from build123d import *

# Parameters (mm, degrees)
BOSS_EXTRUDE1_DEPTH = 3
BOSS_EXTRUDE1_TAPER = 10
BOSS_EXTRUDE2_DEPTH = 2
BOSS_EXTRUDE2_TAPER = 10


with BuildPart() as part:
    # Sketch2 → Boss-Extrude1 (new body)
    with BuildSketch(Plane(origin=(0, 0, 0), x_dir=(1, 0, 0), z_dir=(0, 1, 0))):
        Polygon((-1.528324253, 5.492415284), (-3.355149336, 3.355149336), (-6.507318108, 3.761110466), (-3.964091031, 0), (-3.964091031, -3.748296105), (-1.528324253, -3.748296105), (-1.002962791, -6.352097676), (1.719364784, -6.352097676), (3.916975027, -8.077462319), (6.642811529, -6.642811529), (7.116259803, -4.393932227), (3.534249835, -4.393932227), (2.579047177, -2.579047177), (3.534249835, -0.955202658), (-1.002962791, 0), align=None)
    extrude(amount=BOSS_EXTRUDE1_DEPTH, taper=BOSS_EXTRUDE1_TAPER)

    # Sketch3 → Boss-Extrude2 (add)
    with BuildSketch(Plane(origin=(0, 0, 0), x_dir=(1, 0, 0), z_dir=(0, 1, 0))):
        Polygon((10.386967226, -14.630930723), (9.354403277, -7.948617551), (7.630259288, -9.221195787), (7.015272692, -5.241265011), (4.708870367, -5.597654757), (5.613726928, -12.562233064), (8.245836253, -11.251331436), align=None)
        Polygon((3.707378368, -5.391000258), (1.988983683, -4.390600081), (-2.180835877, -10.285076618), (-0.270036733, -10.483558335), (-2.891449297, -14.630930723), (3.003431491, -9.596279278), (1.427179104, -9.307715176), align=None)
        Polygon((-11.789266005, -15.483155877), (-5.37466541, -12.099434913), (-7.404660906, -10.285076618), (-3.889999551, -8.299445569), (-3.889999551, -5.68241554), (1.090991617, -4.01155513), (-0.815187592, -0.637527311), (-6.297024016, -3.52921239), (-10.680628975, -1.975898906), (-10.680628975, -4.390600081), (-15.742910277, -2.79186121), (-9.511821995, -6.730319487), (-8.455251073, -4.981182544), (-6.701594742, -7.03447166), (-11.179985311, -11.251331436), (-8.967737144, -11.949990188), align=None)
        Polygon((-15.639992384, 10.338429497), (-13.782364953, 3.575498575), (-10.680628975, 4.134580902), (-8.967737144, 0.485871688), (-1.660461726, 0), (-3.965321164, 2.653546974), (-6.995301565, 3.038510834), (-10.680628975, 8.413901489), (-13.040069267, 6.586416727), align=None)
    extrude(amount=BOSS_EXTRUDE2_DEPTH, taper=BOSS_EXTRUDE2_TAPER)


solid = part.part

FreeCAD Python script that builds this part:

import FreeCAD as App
import Part
import Sketcher

V = App.Vector

doc = App.newDocument("Part")
params = doc.addObject("Spreadsheet::Sheet", "Params")
for row, (alias, value) in enumerate([
    ("pad1_length", "3 mm"),
    ("pad1_taper", "-10 deg"),
    ("pad2_length", "2 mm"),
    ("pad2_taper", "-10 deg"),
], start=1):
    params.set(f"A{row}", alias)
    params.set(f"B{row}", "=" + value)
    params.setAlias(f"B{row}", alias)

body = doc.addObject("PartDesign::Body", "Body")

sketch1 = body.newObject("Sketcher::SketchObject", "Sketch")
sketch1.AttachmentSupport = (doc.getObject("XZ_Plane"), [""])
sketch1.MapMode = "FlatFace"
sketch1.addGeometry([
    Part.LineSegment(V(-1.5, -5.5, 0), V(-3.4, -3.4, 0)),
    Part.LineSegment(V(-3.4, -3.4, 0), V(-6.5, -3.8, 0)),
    Part.LineSegment(V(-6.5, -3.8, 0), V(-4, 0, 0)),
    Part.LineSegment(V(-4, 0, 0), V(-4, 3.7, 0)),
    Part.LineSegment(V(-4, 3.7, 0), V(-1.5, 3.7, 0)),
    Part.LineSegment(V(-1.5, 3.7, 0), V(-1, 6.4, 0)),
    Part.LineSegment(V(-1, 6.4, 0), V(1.7, 6.4, 0)),
    Part.LineSegment(V(1.7, 6.4, 0), V(3.9, 8.1, 0)),
    Part.LineSegment(V(3.9, 8.1, 0), V(6.6, 6.6, 0)),
    Part.LineSegment(V(6.6, 6.6, 0), V(7.1, 4.4, 0)),
    Part.LineSegment(V(7.1, 4.4, 0), V(3.5, 4.4, 0)),
    Part.LineSegment(V(3.5, 4.4, 0), V(2.6, 2.6, 0)),
    Part.LineSegment(V(2.6, 2.6, 0), V(3.5, 1, 0)),
    Part.LineSegment(V(3.5, 1, 0), V(-1, 0, 0)),
    Part.LineSegment(V(-1, 0, 0), V(-1.5, -5.5, 0)),
], False)
sketch1.addConstraint([
    Sketcher.Constraint("Coincident", 0, 2, 1, 1),
    Sketcher.Constraint("Coincident", 1, 2, 2, 1),
    Sketcher.Constraint("Coincident", 2, 2, 3, 1),
    Sketcher.Constraint("Coincident", 3, 2, 4, 1),
    Sketcher.Constraint("Coincident", 4, 2, 5, 1),
    Sketcher.Constraint("Coincident", 5, 2, 6, 1),
    Sketcher.Constraint("Coincident", 6, 2, 7, 1),
    Sketcher.Constraint("Coincident", 7, 2, 8, 1),
    Sketcher.Constraint("Coincident", 8, 2, 9, 1),
    Sketcher.Constraint("Coincident", 9, 2, 10, 1),
    Sketcher.Constraint("Coincident", 10, 2, 11, 1),
    Sketcher.Constraint("Coincident", 11, 2, 12, 1),
    Sketcher.Constraint("Coincident", 12, 2, 13, 1),
    Sketcher.Constraint("Coincident", 13, 2, 14, 1),
    Sketcher.Constraint("Coincident", 14, 2, 0, 1),
    Sketcher.Constraint("Vertical", 3),
    Sketcher.Constraint("Horizontal", 4),
    Sketcher.Constraint("Horizontal", 6),
    Sketcher.Constraint("Horizontal", 10),
    Sketcher.Constraint("PointOnObject", 2, 2, -1),
    Sketcher.Constraint("PointOnObject", 13, 2, -1),
    Sketcher.Constraint("Perpendicular", 8, 11),
    Sketcher.Constraint("Perpendicular", 9, 13),
    Sketcher.Constraint("Vertical", 10, 2, 12, 2),
    Sketcher.Constraint("Vertical", 5, 2, 13, 2),
    Sketcher.Constraint("Vertical", 4, 2, 14, 2),
    Sketcher.Constraint("DistanceX", 10, 2, 10, 1, 3.58201),
    Sketcher.Constraint("DistanceY", 4, 2, 5, 2, 2.603802),
    Sketcher.Constraint("DistanceX", 4, 2, 7, 2, 5.445299),
    Sketcher.Constraint("Distance", 2, 4.540259),
    Sketcher.Constraint("Distance", 7, 2.793989),
    Sketcher.Constraint("Distance", 13, 4.63667),
    Sketcher.Constraint("DistanceX", 4, 1, 4, 2, 2.435767),
    Sketcher.Constraint("DistanceX", 6, 1, 6, 2, 2.722328),
    Sketcher.Constraint("DistanceY", 3, 1, 3, 2, 3.748296),
    Sketcher.Constraint("DistanceX", 0, 2, -1, 1, 3.355149),
    Sketcher.Constraint("DistanceY", 0, 2, -1, 1, 3.355149),
    Sketcher.Constraint("DistanceX", 1, 2, -1, 1, 6.507318),
    Sketcher.Constraint("DistanceY", 1, 2, -1, 1, 3.76111),
    Sketcher.Constraint("DistanceX", -1, 1, 8, 2, 6.642812),
    Sketcher.Constraint("DistanceY", -1, 1, 8, 2, 6.642812),
    Sketcher.Constraint("DistanceX", -1, 1, 9, 2, 7.11626),
    Sketcher.Constraint("DistanceX", 4, 2, 5, 2, 0.525361),
    Sketcher.Constraint("DistanceY", 11, 2, 6, 2, 3.77305),
    Sketcher.Constraint("Distance", 0, 2.811618),
])
pad1 = body.newObject("PartDesign::Pad", "Pad")
pad1.Profile = sketch1
pad1.setExpression("Length", "Params.pad1_length")
pad1.Reversed = True
pad1.setExpression("TaperAngle", "Params.pad1_taper")

sketch2 = body.newObject("Sketcher::SketchObject", "Sketch001")
sketch2.AttachmentSupport = (doc.getObject("XZ_Plane"), [""])
sketch2.MapMode = "FlatFace"
sketch2.addGeometry([
    Part.LineSegment(V(10.4, 14.6, 0), V(9.4, 7.9, 0)),
    Part.LineSegment(V(9.4, 7.9, 0), V(7.6, 9.2, 0)),
    Part.LineSegment(V(7.6, 9.2, 0), V(7, 5.2, 0)),
    Part.LineSegment(V(7, 5.2, 0), V(4.7, 5.6, 0)),
    Part.LineSegment(V(4.7, 5.6, 0), V(5.6, 12.6, 0)),
    Part.LineSegment(V(5.6, 12.6, 0), V(8.2, 11.3, 0)),
    Part.LineSegment(V(8.2, 11.3, 0), V(10.4, 14.6, 0)),
    Part.LineSegment(V(3.7, 5.4, 0), V(2, 4.4, 0)),
    Part.LineSegment(V(2, 4.4, 0), V(-2.2, 10.3, 0)),
    Part.LineSegment(V(-2.2, 10.3, 0), V(-0.3, 10.5, 0)),
    Part.LineSegment(V(-0.3, 10.5, 0), V(-2.9, 14.6, 0)),
    Part.LineSegment(V(-2.9, 14.6, 0), V(3, 9.6, 0)),
    Part.LineSegment(V(3, 9.6, 0), V(1.4, 9.3, 0)),
    Part.LineSegment(V(1.4, 9.3, 0), V(3.7, 5.4, 0)),
    Part.LineSegment(V(-11.8, 15.5, 0), V(-5.4, 12.1, 0)),
    Part.LineSegment(V(-5.4, 12.1, 0), V(-7.4, 10.3, 0)),
    Part.LineSegment(V(-7.4, 10.3, 0), V(-3.9, 8.3, 0)),
    Part.LineSegment(V(-3.9, 8.3, 0), V(-3.9, 5.7, 0)),
    Part.LineSegment(V(-3.9, 5.7, 0), V(1.1, 4, 0)),
    Part.LineSegment(V(1.1, 4, 0), V(-0.8, 0.6, 0)),
    Part.LineSegment(V(-0.8, 0.6, 0), V(-6.3, 3.5, 0)),
    Part.LineSegment(V(-6.3, 3.5, 0), V(-10.7, 2, 0)),
    Part.LineSegment(V(-10.7, 2, 0), V(-10.7, 4.4, 0)),
    Part.LineSegment(V(-10.7, 4.4, 0), V(-15.7, 2.8, 0)),
    Part.LineSegment(V(-15.7, 2.8, 0), V(-9.5, 6.7, 0)),
    Part.LineSegment(V(-9.5, 6.7, 0), V(-8.5, 5, 0)),
    Part.LineSegment(V(-8.5, 5, 0), V(-6.7, 7, 0)),
    Part.LineSegment(V(-6.7, 7, 0), V(-11.2, 11.3, 0)),
    Part.LineSegment(V(-11.2, 11.3, 0), V(-9, 11.9, 0)),
    Part.LineSegment(V(-9, 11.9, 0), V(-11.8, 15.5, 0)),
    Part.LineSegment(V(-15.6, -10.3, 0), V(-13.8, -3.6, 0)),
    Part.LineSegment(V(-13.8, -3.6, 0), V(-10.7, -4.1, 0)),
    Part.LineSegment(V(-10.7, -4.1, 0), V(-9, -0.5, 0)),
    Part.LineSegment(V(-9, -0.5, 0), V(-1.7, 0, 0)),
    Part.LineSegment(V(-1.7, 0, 0), V(-4, -2.7, 0)),
    Part.LineSegment(V(-4, -2.7, 0), V(-7, -3, 0)),
    Part.LineSegment(V(-7, -3, 0), V(-10.7, -8.4, 0)),
    Part.LineSegment(V(-10.7, -8.4, 0), V(-13, -6.6, 0)),
    Part.LineSegment(V(-13, -6.6, 0), V(-15.6, -10.3, 0)),
], False)
sketch2.addConstraint([
    Sketcher.Constraint("Coincident", 0, 2, 1, 1),
    Sketcher.Constraint("Coincident", 1, 2, 2, 1),
    Sketcher.Constraint("Coincident", 2, 2, 3, 1),
    Sketcher.Constraint("Coincident", 3, 2, 4, 1),
    Sketcher.Constraint("Coincident", 4, 2, 5, 1),
    Sketcher.Constraint("Coincident", 5, 2, 6, 1),
    Sketcher.Constraint("Coincident", 6, 2, 0, 1),
    Sketcher.Constraint("Coincident", 7, 2, 8, 1),
    Sketcher.Constraint("Coincident", 8, 2, 9, 1),
    Sketcher.Constraint("Coincident", 9, 2, 10, 1),
    Sketcher.Constraint("Coincident", 10, 2, 11, 1),
    Sketcher.Constraint("Coincident", 11, 2, 12, 1),
    Sketcher.Constraint("Coincident", 12, 2, 13, 1),
    Sketcher.Constraint("Coincident", 13, 2, 7, 1),
    Sketcher.Constraint("Coincident", 14, 2, 15, 1),
    Sketcher.Constraint("Coincident", 15, 2, 16, 1),
    Sketcher.Constraint("Coincident", 16, 2, 17, 1),
    Sketcher.Constraint("Coincident", 17, 2, 18, 1),
    Sketcher.Constraint("Coincident", 18, 2, 19, 1),
    Sketcher.Constraint("Coincident", 19, 2, 20, 1),
    Sketcher.Constraint("Coincident", 20, 2, 21, 1),
    Sketcher.Constraint("Coincident", 21, 2, 22, 1),
    Sketcher.Constraint("Coincident", 22, 2, 23, 1),
    Sketcher.Constraint("Coincident", 23, 2, 24, 1),
    Sketcher.Constraint("Coincident", 24, 2, 25, 1),
    Sketcher.Constraint("Coincident", 25, 2, 26, 1),
    Sketcher.Constraint("Coincident", 26, 2, 27, 1),
    Sketcher.Constraint("Coincident", 27, 2, 28, 1),
    Sketcher.Constraint("Coincident", 28, 2, 29, 1),
    Sketcher.Constraint("Coincident", 29, 2, 14, 1),
    Sketcher.Constraint("Coincident", 30, 2, 31, 1),
    Sketcher.Constraint("Coincident", 31, 2, 32, 1),
    Sketcher.Constraint("Coincident", 32, 2, 33, 1),
    Sketcher.Constraint("Coincident", 33, 2, 34, 1),
    Sketcher.Constraint("Coincident", 34, 2, 35, 1),
    Sketcher.Constraint("Coincident", 35, 2, 36, 1),
    Sketcher.Constraint("Coincident", 36, 2, 37, 1),
    Sketcher.Constraint("Coincident", 37, 2, 38, 1),
    Sketcher.Constraint("Coincident", 38, 2, 30, 1),
    Sketcher.Constraint("Vertical", 17),
    Sketcher.Constraint("Vertical", 22),
    Sketcher.Constraint("PointOnObject", 33, 2, -1),
    Sketcher.Constraint("Parallel", 0, 2),
    Sketcher.Constraint("Perpendicular", 2, 3),
    Sketcher.Constraint("Perpendicular", 7, 13),
    Sketcher.Constraint("Perpendicular", 16, 19),
    Sketcher.Constraint("Parallel", 14, 20),
    Sketcher.Constraint("Perpendicular", 10, 24),
    Sketcher.Constraint("Perpendicular", 11, 26),
    Sketcher.Constraint("Parallel", 23, 28),
    Sketcher.Constraint("Horizontal", 6, 2, 10, 2),
    Sketcher.Constraint("Horizontal", 8, 2, 15, 2),
    Sketcher.Constraint("Horizontal", 7, 2, 22, 2),
    Sketcher.Constraint("Horizontal", 5, 2, 27, 2),
    Sketcher.Constraint("Vertical", 22, 2, 31, 2),
    Sketcher.Constraint("Vertical", 28, 2, 32, 2),
    Sketcher.Constraint("Vertical", 31, 2, 36, 2),
    Sketcher.Constraint("DistanceX", 16, 2, -1, 1, 3.89),
    Sketcher.Constraint("DistanceY", 22, 1, 22, 2, 2.414701),
    Sketcher.Constraint("DistanceY", -1, 1, 13, 2, 5.391),
    Sketcher.Constraint("DistanceY", 17, 2, 17, 1, 2.61703),
    Sketcher.Constraint("DistanceY", -1, 1, 7, 2, 4.3906),
    Sketcher.Constraint("DistanceY", 30, 2, -1, 1, 3.575499),
    Sketcher.Constraint("DistanceX", 35, 2, -1, 1, 6.995302),
    Sketcher.Constraint("DistanceY", 36, 2, -1, 1, 8.413901),
    Sketcher.Constraint("DistanceY", 5, 2, 4, 2, 1.310902),
    Sketcher.Constraint("DistanceY", 5, 2, 6, 2, 3.379599),
    Sketcher.Constraint("DistanceX", 8, 2, 9, 2, 1.910799),
    Sketcher.Constraint("DistanceX", 12, 2, 13, 2, 2.280199),
    Sketcher.Constraint("DistanceY", 18, 2, 3, 2, 1.5861),
    Sketcher.Constraint("DistanceX", 29, 2, 14, 2, 6.414601),
    Sketcher.Constraint("Distance", 0, 6.761619),
    Sketcher.Constraint("Distance", 9, 1.92108),
    Sketcher.Constraint("Distance", 12, 1.602448),
    Sketcher.Constraint("Distance", 15, 2.722642),
    Sketcher.Constraint("Distance", 20, 6.197772),
    Sketcher.Constraint("Distance", 26, 2.700242),
    Sketcher.Constraint("Distance", 27, 6.151251),
    Sketcher.Constraint("Distance", 28, 2.31995),
    Sketcher.Constraint("Distance", 31, 3.15172),
    Sketcher.Constraint("Distance", 33, 7.323411),
    Sketcher.Constraint("Distance", 34, 3.514781),
    Sketcher.Constraint("Distance", 38, 4.564778),
    Sketcher.Constraint("DistanceX", -1, 1, 1, 2, 7.630259),
    Sketcher.Constraint("DistanceX", -1, 1, 3, 2, 4.70887),
    Sketcher.Constraint("DistanceY", -1, 1, 5, 2, 11.251331),
    Sketcher.Constraint("DistanceY", -1, 1, 9, 2, 10.483558),
    Sketcher.Constraint("DistanceX", 10, 2, -1, 1, 2.891449),
    Sketcher.Constraint("DistanceX", -1, 1, 11, 2, 3.003431),
    Sketcher.Constraint("DistanceY", -1, 1, 11, 2, 9.596279),
    Sketcher.Constraint("DistanceX", -1, 1, 12, 2, 1.427179),
    Sketcher.Constraint("DistanceX", 15, 2, -1, 1, 7.404661),
    Sketcher.Constraint("DistanceX", -1, 1, 18, 2, 1.090992),
    Sketcher.Constraint("DistanceX", 21, 2, -1, 1, 10.680629),
    Sketcher.Constraint("DistanceX", 23, 2, -1, 1, 15.74291),
    Sketcher.Constraint("DistanceY", -1, 1, 23, 2, 2.791861),
    Sketcher.Constraint("DistanceX", 24, 2, -1, 1, 9.511822),
    Sketcher.Constraint("DistanceY", -1, 1, 24, 2, 6.730319),
    Sketcher.Constraint("DistanceX", 25, 2, -1, 1, 8.455251),
    Sketcher.Constraint("DistanceY", -1, 1, 26, 2, 7.034472),
    Sketcher.Constraint("DistanceY", 31, 2, -1, 1, 4.134581),
    Sketcher.Constraint("DistanceY", 32, 2, -1, 1, 0.485872),
    Sketcher.Constraint("DistanceX", 34, 2, -1, 1, 3.965321),
    Sketcher.Constraint("DistanceY", 35, 2, -1, 1, 3.038511),
    Sketcher.Constraint("DistanceX", 37, 2, -1, 1, 13.040069),
    Sketcher.Constraint("DistanceY", 38, 2, -1, 1, 10.338429),
    Sketcher.Constraint("DistanceY", 0, 2, 1, 2, 1.272578),
    Sketcher.Constraint("DistanceX", 2, 2, 0, 2, 2.339131),
    Sketcher.Constraint("DistanceY", 2, 2, 1, 2, 3.979931),
    Sketcher.Constraint("DistanceY", 2, 2, 3, 2, 0.35639),
    Sketcher.Constraint("DistanceX", 4, 2, 5, 2, 2.632109),
    Sketcher.Constraint("DistanceX", 5, 2, 6, 2, 2.141131),
    Sketcher.Constraint("DistanceX", 14, 2, 8, 2, 3.19383),
    Sketcher.Constraint("DistanceY", 16, 2, 8, 2, 1.985631),
    Sketcher.Constraint("DistanceX", 19, 2, 18, 2, 1.906179),
    Sketcher.Constraint("DistanceY", 23, 2, 20, 2, 0.737351),
    Sketcher.Constraint("DistanceY", 37, 2, 30, 2, 3.010918),
])
pad2 = body.newObject("PartDesign::Pad", "Pad001")
pad2.Profile = sketch2
pad2.setExpression("Length", "Params.pad2_length")
pad2.Reversed = True
pad2.setExpression("TaperAngle", "Params.pad2_taper")

doc.recompute()
